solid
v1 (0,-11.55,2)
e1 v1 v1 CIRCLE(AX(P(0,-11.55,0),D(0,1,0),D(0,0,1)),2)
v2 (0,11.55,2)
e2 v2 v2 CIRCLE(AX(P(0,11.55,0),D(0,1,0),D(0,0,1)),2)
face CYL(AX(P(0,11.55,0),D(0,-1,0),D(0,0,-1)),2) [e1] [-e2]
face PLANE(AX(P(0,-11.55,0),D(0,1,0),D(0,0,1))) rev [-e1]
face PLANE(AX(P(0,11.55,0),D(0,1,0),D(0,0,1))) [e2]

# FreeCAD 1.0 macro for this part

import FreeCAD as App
import Part
import Sketcher

V = App.Vector

doc = App.newDocument("Part")
params = doc.addObject("Spreadsheet::Sheet", "Params")
for row, (alias, value) in enumerate([
    ("sketch1_diameter", "4 mm"),
    ("pad1_length", "23.1 mm"),
], start=1):
    params.set(f"A{row}", alias)
    params.set(f"B{row}", "=" + value)
    params.setAlias(f"B{row}", alias)

body = doc.addObject("PartDesign::Body", "Body")

sketch1 = body.newObject("Sketcher::SketchObject", "Sketch")
sketch1.AttachmentSupport = (doc.getObject("XZ_Plane"), [""])
sketch1.MapMode = "FlatFace"
sketch1.addGeometry(Part.Circle(V(0, 0, 0), V(0, 0, 1), 2), False)
sketch1.addConstraint(Sketcher.Constraint("Coincident", 0, 3, -1, 1))
sketch1.addConstraint(Sketcher.Constraint("Diameter", 0, 4.0))
sketch1.setExpression("Constraints[1]", "Params.sketch1_diameter")
pad1 = body.newObject("PartDesign::Pad", "Pad")
pad1.Profile = sketch1
pad1.setExpression("Length", "Params.pad1_length")
pad1.Midplane = True

doc.recompute()
